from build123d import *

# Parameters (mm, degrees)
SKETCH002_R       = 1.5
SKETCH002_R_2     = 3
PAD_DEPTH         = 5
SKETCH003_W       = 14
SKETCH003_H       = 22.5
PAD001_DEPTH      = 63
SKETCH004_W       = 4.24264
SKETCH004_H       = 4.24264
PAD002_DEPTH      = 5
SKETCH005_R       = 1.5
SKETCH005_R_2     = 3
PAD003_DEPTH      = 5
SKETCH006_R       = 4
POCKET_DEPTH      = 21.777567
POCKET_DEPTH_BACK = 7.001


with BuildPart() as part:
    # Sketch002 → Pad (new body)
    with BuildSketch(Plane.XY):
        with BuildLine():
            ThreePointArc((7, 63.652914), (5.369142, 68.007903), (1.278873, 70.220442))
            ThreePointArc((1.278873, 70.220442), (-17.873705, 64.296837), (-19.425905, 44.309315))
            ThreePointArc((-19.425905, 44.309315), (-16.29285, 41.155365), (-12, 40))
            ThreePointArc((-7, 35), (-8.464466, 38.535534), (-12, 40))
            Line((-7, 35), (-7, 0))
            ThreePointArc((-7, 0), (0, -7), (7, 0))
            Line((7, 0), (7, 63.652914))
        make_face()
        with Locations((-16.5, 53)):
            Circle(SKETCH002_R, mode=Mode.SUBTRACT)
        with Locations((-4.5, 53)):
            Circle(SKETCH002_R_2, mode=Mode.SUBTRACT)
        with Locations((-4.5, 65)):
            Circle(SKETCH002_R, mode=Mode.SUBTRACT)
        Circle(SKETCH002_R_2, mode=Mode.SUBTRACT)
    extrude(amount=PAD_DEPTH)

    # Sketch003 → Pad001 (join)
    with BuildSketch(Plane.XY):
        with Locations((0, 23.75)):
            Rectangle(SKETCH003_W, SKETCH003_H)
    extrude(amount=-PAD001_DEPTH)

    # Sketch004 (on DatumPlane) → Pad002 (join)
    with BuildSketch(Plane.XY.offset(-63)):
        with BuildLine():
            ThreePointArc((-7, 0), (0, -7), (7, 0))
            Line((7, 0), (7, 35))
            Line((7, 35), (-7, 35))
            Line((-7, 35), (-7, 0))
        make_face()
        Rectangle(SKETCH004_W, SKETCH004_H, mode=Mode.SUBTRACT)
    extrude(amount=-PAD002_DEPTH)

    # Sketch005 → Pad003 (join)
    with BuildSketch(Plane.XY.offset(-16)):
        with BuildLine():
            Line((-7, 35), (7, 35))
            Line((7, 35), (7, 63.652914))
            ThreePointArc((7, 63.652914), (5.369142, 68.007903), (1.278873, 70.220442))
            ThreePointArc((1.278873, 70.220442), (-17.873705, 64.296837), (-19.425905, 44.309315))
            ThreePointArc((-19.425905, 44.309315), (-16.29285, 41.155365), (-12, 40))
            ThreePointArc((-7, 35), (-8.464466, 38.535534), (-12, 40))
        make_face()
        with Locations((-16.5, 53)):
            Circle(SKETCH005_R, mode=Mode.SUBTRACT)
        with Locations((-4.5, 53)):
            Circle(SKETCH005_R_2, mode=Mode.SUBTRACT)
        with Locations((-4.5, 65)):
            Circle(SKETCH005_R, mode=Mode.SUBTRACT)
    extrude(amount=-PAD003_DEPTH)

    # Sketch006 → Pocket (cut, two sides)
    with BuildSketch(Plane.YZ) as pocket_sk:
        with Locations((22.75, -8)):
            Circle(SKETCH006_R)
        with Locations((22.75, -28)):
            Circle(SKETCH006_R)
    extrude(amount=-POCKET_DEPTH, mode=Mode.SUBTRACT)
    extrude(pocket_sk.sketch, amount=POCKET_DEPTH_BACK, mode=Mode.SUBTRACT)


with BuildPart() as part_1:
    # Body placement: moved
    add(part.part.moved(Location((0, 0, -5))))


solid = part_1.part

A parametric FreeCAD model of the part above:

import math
import FreeCAD as App
import Part
import Sketcher
from FreeCAD import Vector
Q = App.Units.Quantity


def add_polygon(sketch, points):
    """Adds a closed chain of lines whose ends are joined by coincident constraints."""
    first, n = sketch.GeometryCount, len(points)
    for a, b in zip(points, points[1:] + points[:1]):
        sketch.addGeometry(Part.LineSegment(App.Vector(*a, 0), App.Vector(*b, 0)), False)
    for i in range(n):
        sketch.addConstraint(Sketcher.Constraint("Coincident", first + i, 2, first + (i + 1) % n, 1))

doc = App.newDocument("Part")
body = doc.addObject("PartDesign::Body", "Body")

sketch1 = body.newObject("Sketcher::SketchObject", "Sketch")
sketch1.AttachmentSupport = (doc.getObject("XY_Plane"), [""])
sketch1.MapMode = "FlatFace"
sketch1.addGeometry(Part.ArcOfCircle(Part.Circle(Vector(0.4, 63.7, 0), Vector(0, 0, 1), 6.6), math.radians(0), math.radians(82)), False)
sketch1.addGeometry(Part.ArcOfCircle(Part.Circle(Vector(-3.9, 53.2, 0), Vector(0, 0, 1), 17.8), math.radians(73), math.radians(210)), False)
sketch1.addGeometry(Part.ArcOfCircle(Part.Circle(Vector(-12, 48.6, 0), Vector(0, 0, 1), 8.6), math.radians(-150), math.radians(-90)), False)
sketch1.addGeometry(Part.ArcOfCircle(Part.Circle(Vector(-12, 35, 0), Vector(0, 0, 1), 5), math.radians(0), math.radians(90)), False)
sketch1.addGeometry(Part.LineSegment(Vector(-7, 35, 0), Vector(-7, 0, 0)), False)
sketch1.addGeometry(Part.ArcOfCircle(Part.Circle(Vector(0, 0, 0), Vector(0, 0, 1), 7), math.radians(180), math.radians(360)), False)
sketch1.addGeometry(Part.LineSegment(Vector(7, 0, 0), Vector(7, 63.7, 0)), False)
sketch1.addGeometry(Part.Circle(Vector(0, 0, 0), Vector(0, 0, 1), 3), False)
sketch1.addGeometry(Part.Circle(Vector(-16.5, 53, 0), Vector(0, 0, 1), 1.5), False)
sketch1.addGeometry(Part.Circle(Vector(-4.5, 53, 0), Vector(0, 0, 1), 3), False)
sketch1.addGeometry(Part.Circle(Vector(-4.5, 65, 0), Vector(0, 0, 1), 1.5), False)
sketch1.addConstraint(Sketcher.Constraint("Coincident", 0, 2, 1, 1))
sketch1.addConstraint(Sketcher.Constraint("Tangent", 1, 2, 2, 1))
sketch1.addConstraint(Sketcher.Constraint("Tangent", 2, 2, 3, 2))
sketch1.addConstraint(Sketcher.Constraint("Tangent", 3, 1, 4, 1))
sketch1.addConstraint(Sketcher.Constraint("Tangent", 4, 2, 5, 1))
sketch1.addConstraint(Sketcher.Constraint("Tangent", 5, 2, 6, 1))
sketch1.addConstraint(Sketcher.Constraint("Tangent", 6, 2, 0, 1))
sketch1.addConstraint(Sketcher.Constraint("Vertical", 4))
sketch1.addConstraint(Sketcher.Constraint("Vertical", 6))
sketch1.addConstraint(Sketcher.Constraint("Coincident", 5, 3, -1, 1))
sketch1.addConstraint(Sketcher.Constraint("Coincident", 7, 3, -1, 1))
sketch1.addConstraint(Sketcher.Constraint("Equal", 7, 9))
sketch1.addConstraint(Sketcher.Constraint("Equal", 8, 10))
sketch1.addConstraint(Sketcher.Constraint("Horizontal", 8, 3, 9, 3))
sketch1.addConstraint(Sketcher.Constraint("Vertical", 2, 3, 3, 3))
sketch1.addConstraint(Sketcher.Constraint("Vertical", 9, 3, 10, 3))
sketch1.addConstraint(Sketcher.Constraint("Diameter", 7, Q("6 mm")))
sketch1.addConstraint(Sketcher.Constraint("Diameter", 8, Q("3 mm")))
sketch1.addConstraint(Sketcher.Constraint("Radius", 3, Q("5 mm")))
sketch1.addConstraint(Sketcher.Constraint("Radius", 5, Q("7 mm")))
sketch1.addConstraint(Sketcher.Constraint("DistanceY", 4, 2, 4, 1, Q("35 mm")))
sketch1.addConstraint(Sketcher.Constraint("DistanceY", -1, 1, 8, 3, Q("53 mm")))
sketch1.addConstraint(Sketcher.Constraint("DistanceY", -1, 1, 10, 3, Q("65 mm")))
sketch1.addConstraint(Sketcher.Constraint("DistanceX", 8, 3, 9, 3, Q("12 mm")))
sketch1.addConstraint(Sketcher.Constraint("DistanceX", 8, 3, -1, 1, Q("16.5 mm")))
sketch1.addConstraint(Sketcher.Constraint("Radius", 2, Q("8.552901 mm")))
sketch1.addConstraint(Sketcher.Constraint("Radius", 1, Q("17.839492 mm")))
sketch1.addConstraint(Sketcher.Constraint("Radius", 0, Q("6.630137 mm")))
sketch1.addConstraint(Sketcher.Constraint("DistanceY", 6, 1, 6, 2, Q("63.652914 mm")))
sketch1.addConstraint(Sketcher.Constraint("DistanceY", -1, 1, 1, 3, Q("53.160508 mm")))
pad1 = body.newObject("PartDesign::Pad", "Pad")
pad1.Profile = sketch1
pad1.Length = 5

sketch2 = body.newObject("Sketcher::SketchObject", "Sketch001")
sketch2.AttachmentSupport = (doc.getObject("XY_Plane"), [""])
sketch2.MapMode = "FlatFace"
add_polygon(sketch2, [(-7, 35), (-7, 12), (7, 12), (7, 35)])
sketch2.addConstraint(Sketcher.Constraint("Vertical", 0))
sketch2.addConstraint(Sketcher.Constraint("Horizontal", 1))
sketch2.addConstraint(Sketcher.Constraint("Vertical", 2))
sketch2.addConstraint(Sketcher.Constraint("Horizontal", 3))
sketch2.addConstraint(Sketcher.Constraint("DistanceX", 1, 1, 1, 2, Q("14 mm")))
sketch2.addConstraint(Sketcher.Constraint("DistanceY", 0, 2, 0, 1, Q("22.5 mm")))
sketch2.addConstraint(Sketcher.Constraint("DistanceX", 0, 2, -1, 1, Q("7 mm")))
sketch2.addConstraint(Sketcher.Constraint("DistanceY", -1, 1, 2, 2, Q("35 mm")))
pad2 = body.newObject("PartDesign::Pad", "Pad001")
pad2.Profile = sketch2
pad2.Length = 63
pad2.Reversed = True

sketch3 = body.newObject("Sketcher::SketchObject", "Sketch002")
sketch3.AttachmentSupport = (doc.getObject("XY_Plane"), [""])
sketch3.MapMode = "FlatFace"
sketch3.AttachmentOffset = App.Placement(Vector(0, 0, -63), App.Rotation())
sketch3.addGeometry(Part.ArcOfCircle(Part.Circle(Vector(0, 0, 0), Vector(0, 0, 1), 7), math.radians(180), math.radians(360)), False)
sketch3.addGeometry(Part.LineSegment(Vector(7, 0, 0), Vector(7, 35, 0)), False)
sketch3.addGeometry(Part.LineSegment(Vector(7, 35, 0), Vector(-7, 35, 0)), False)
sketch3.addGeometry(Part.LineSegment(Vector(-7, 35, 0), Vector(-7, 0, 0)), False)
add_polygon(sketch3, [(2.1, -2.1), (-2.1, -2.1), (-2.1, 2.1), (2.1, 2.1)])
sketch3.addConstraint(Sketcher.Constraint("Tangent", 0, 2, 1, 1))
sketch3.addConstraint(Sketcher.Constraint("Coincident", 1, 2, 2, 1))
sketch3.addConstraint(Sketcher.Constraint("Coincident", 2, 2, 3, 1))
sketch3.addConstraint(Sketcher.Constraint("Tangent", 3, 2, 0, 1))
sketch3.addConstraint(Sketcher.Constraint("Vertical", 1))
sketch3.addConstraint(Sketcher.Constraint("Horizontal", 2))
sketch3.addConstraint(Sketcher.Constraint("Vertical", 3))
sketch3.addConstraint(Sketcher.Constraint("Horizontal", 4))
sketch3.addConstraint(Sketcher.Constraint("Vertical", 5))
sketch3.addConstraint(Sketcher.Constraint("Horizontal", 6))
sketch3.addConstraint(Sketcher.Constraint("Vertical", 7))
sketch3.addConstraint(Sketcher.Constraint("Coincident", 0, 3, -1, 1))
sketch3.addConstraint(Sketcher.Constraint("Symmetric", 4, 2, 6, 2, -1, 1))
sketch3.addConstraint(Sketcher.Constraint("Equal", 6, 5))
sketch3.addConstraint(Sketcher.Constraint("Radius", 0, Q("7 mm")))
sketch3.addConstraint(Sketcher.Constraint("DistanceY", 1, 1, 1, 2, Q("35 mm")))
sketch3.addConstraint(Sketcher.Constraint("DistanceX", 4, 2, 4, 1, Q("4.24264 mm")))
pad3 = body.newObject("PartDesign::Pad", "Pad002")
pad3.Profile = sketch3
pad3.Length = 5
pad3.Reversed = True

sketch4 = body.newObject("Sketcher::SketchObject", "Sketch003")
sketch4.AttachmentSupport = (doc.getObject("XY_Plane"), [""])
sketch4.MapMode = "FlatFace"
sketch4.AttachmentOffset = App.Placement(Vector(0, 0, -16), App.Rotation())
sketch4.addGeometry(Part.LineSegment(Vector(-7, 35, 0), Vector(7, 35, 0)), False)
sketch4.addGeometry(Part.LineSegment(Vector(7, 35, 0), Vector(7, 63.7, 0)), False)
sketch4.addGeometry(Part.ArcOfCircle(Part.Circle(Vector(0.4, 63.7, 0), Vector(0, 0, 1), 6.6), math.radians(0), math.radians(82)), False)
sketch4.addGeometry(Part.ArcOfCircle(Part.Circle(Vector(-3.9, 53.2, 0), Vector(0, 0, 1), 17.8), math.radians(73), math.radians(210)), False)
sketch4.addGeometry(Part.ArcOfCircle(Part.Circle(Vector(-12, 48.6, 0), Vector(0, 0, 1), 8.6), math.radians(-150), math.radians(-90)), False)
sketch4.addGeometry(Part.ArcOfCircle(Part.Circle(Vector(-12, 35, 0), Vector(0, 0, 1), 5), math.radians(0), math.radians(90)), False)
sketch4.addGeometry(Part.Circle(Vector(-16.5, 53, 0), Vector(0, 0, 1), 1.5), False)
sketch4.addGeometry(Part.Circle(Vector(-4.5, 53, 0), Vector(0, 0, 1), 3), False)
sketch4.addGeometry(Part.Circle(Vector(-4.5, 65, 0), Vector(0, 0, 1), 1.5), False)
sketch4.addConstraint(Sketcher.Constraint("Coincident", 0, 2, 1, 1))
sketch4.addConstraint(Sketcher.Constraint("Tangent", 1, 2, 2, 1))
sketch4.addConstraint(Sketcher.Constraint("Coincident", 2, 2, 3, 1))
sketch4.addConstraint(Sketcher.Constraint("Tangent", 3, 2, 4, 1))
sketch4.addConstraint(Sketcher.Constraint("Tangent", 4, 2, 5, 2))
sketch4.addConstraint(Sketcher.Constraint("Coincident", 5, 1, 0, 1))
sketch4.addConstraint(Sketcher.Constraint("Horizontal", 0))
sketch4.addConstraint(Sketcher.Constraint("Vertical", 1))
sketch4.addConstraint(Sketcher.Constraint("Equal", 6, 8))
sketch4.addConstraint(Sketcher.Constraint("Horizontal", 6, 3, 7, 3))
sketch4.addConstraint(Sketcher.Constraint("Horizontal", 5, 3, 0, 2))
sketch4.addConstraint(Sketcher.Constraint("Vertical", 4, 3, 5, 3))
sketch4.addConstraint(Sketcher.Constraint("Vertical", 7, 3, 8, 3))
sketch4.addConstraint(Sketcher.Constraint("Diameter", 6, Q("3 mm")))
sketch4.addConstraint(Sketcher.Constraint("Diameter", 7, Q("6 mm")))
sketch4.addConstraint(Sketcher.Constraint("Radius", 5, Q("5 mm")))
sketch4.addConstraint(Sketcher.Constraint("DistanceX", 0, 1, 0, 2, Q("14 mm")))
sketch4.addConstraint(Sketcher.Constraint("DistanceX", 4, 3, -1, 1, Q("11.999998 mm")))
sketch4.addConstraint(Sketcher.Constraint("DistanceY", -1, 1, 5, 3, Q("35 mm")))
sketch4.addConstraint(Sketcher.Constraint("DistanceY", -1, 1, 6, 3, Q("53 mm")))
sketch4.addConstraint(Sketcher.Constraint("DistanceY", -1, 1, 8, 3, Q("65 mm")))
sketch4.addConstraint(Sketcher.Constraint("DistanceX", 6, 3, 7, 3, Q("12 mm")))
sketch4.addConstraint(Sketcher.Constraint("DistanceX", 6, 3, -1, 1, Q("16.5 mm")))
sketch4.addConstraint(Sketcher.Constraint("Radius", 4, Q("8.552901 mm")))
sketch4.addConstraint(Sketcher.Constraint("Radius", 3, Q("17.839492 mm")))
sketch4.addConstraint(Sketcher.Constraint("Radius", 2, Q("6.630137 mm")))
sketch4.addConstraint(Sketcher.Constraint("DistanceY", 1, 1, 1, 2, Q("28.652914 mm")))
sketch4.addConstraint(Sketcher.Constraint("DistanceY", -1, 1, 3, 3, Q("53.160508 mm")))
pad4 = body.newObject("PartDesign::Pad", "Pad003")
pad4.Profile = sketch4
pad4.Length = 5
pad4.Reversed = True

sketch5 = body.newObject("Sketcher::SketchObject", "Sketch004")
sketch5.AttachmentSupport = (doc.getObject("YZ_Plane"), [""])
sketch5.MapMode = "FlatFace"
sketch5.addGeometry(Part.Circle(Vector(22.8, -8, 0), Vector(0, 0, 1), 4), False)
sketch5.addGeometry(Part.Circle(Vector(22.8, -28, 0), Vector(0, 0, 1), 4), False)
sketch5.addConstraint(Sketcher.Constraint("Equal", 0, 1))
sketch5.addConstraint(Sketcher.Constraint("Vertical", 0, 3, 1, 3))
sketch5.addConstraint(Sketcher.Constraint("Diameter", 0, Q("8 mm")))
sketch5.addConstraint(Sketcher.Constraint("DistanceY", 0, 3, -1, 1, Q("8 mm")))
sketch5.addConstraint(Sketcher.Constraint("DistanceY", 1, 3, -1, 1, Q("28 mm")))
sketch5.addConstraint(Sketcher.Constraint("DistanceX", -1, 1, 0, 3, Q("22.75 mm")))
pocket1 = body.newObject("PartDesign::Pocket", "Pocket")
pocket1.Profile = sketch5
pocket1.Type = "ThroughAll"
pocket1.Midplane = True
body2 = doc.addObject("PartDesign::Body", "Body001")
doc.recompute()

body.Placement = App.Placement(Vector(0, 0, -5), App.Rotation(Vector(0, 0, 1), 0))
boolean = body2.newObject("PartDesign::Boolean", "Boolean")
boolean.Type = "Fuse"
boolean.addObjects([body])

doc.recompute()
